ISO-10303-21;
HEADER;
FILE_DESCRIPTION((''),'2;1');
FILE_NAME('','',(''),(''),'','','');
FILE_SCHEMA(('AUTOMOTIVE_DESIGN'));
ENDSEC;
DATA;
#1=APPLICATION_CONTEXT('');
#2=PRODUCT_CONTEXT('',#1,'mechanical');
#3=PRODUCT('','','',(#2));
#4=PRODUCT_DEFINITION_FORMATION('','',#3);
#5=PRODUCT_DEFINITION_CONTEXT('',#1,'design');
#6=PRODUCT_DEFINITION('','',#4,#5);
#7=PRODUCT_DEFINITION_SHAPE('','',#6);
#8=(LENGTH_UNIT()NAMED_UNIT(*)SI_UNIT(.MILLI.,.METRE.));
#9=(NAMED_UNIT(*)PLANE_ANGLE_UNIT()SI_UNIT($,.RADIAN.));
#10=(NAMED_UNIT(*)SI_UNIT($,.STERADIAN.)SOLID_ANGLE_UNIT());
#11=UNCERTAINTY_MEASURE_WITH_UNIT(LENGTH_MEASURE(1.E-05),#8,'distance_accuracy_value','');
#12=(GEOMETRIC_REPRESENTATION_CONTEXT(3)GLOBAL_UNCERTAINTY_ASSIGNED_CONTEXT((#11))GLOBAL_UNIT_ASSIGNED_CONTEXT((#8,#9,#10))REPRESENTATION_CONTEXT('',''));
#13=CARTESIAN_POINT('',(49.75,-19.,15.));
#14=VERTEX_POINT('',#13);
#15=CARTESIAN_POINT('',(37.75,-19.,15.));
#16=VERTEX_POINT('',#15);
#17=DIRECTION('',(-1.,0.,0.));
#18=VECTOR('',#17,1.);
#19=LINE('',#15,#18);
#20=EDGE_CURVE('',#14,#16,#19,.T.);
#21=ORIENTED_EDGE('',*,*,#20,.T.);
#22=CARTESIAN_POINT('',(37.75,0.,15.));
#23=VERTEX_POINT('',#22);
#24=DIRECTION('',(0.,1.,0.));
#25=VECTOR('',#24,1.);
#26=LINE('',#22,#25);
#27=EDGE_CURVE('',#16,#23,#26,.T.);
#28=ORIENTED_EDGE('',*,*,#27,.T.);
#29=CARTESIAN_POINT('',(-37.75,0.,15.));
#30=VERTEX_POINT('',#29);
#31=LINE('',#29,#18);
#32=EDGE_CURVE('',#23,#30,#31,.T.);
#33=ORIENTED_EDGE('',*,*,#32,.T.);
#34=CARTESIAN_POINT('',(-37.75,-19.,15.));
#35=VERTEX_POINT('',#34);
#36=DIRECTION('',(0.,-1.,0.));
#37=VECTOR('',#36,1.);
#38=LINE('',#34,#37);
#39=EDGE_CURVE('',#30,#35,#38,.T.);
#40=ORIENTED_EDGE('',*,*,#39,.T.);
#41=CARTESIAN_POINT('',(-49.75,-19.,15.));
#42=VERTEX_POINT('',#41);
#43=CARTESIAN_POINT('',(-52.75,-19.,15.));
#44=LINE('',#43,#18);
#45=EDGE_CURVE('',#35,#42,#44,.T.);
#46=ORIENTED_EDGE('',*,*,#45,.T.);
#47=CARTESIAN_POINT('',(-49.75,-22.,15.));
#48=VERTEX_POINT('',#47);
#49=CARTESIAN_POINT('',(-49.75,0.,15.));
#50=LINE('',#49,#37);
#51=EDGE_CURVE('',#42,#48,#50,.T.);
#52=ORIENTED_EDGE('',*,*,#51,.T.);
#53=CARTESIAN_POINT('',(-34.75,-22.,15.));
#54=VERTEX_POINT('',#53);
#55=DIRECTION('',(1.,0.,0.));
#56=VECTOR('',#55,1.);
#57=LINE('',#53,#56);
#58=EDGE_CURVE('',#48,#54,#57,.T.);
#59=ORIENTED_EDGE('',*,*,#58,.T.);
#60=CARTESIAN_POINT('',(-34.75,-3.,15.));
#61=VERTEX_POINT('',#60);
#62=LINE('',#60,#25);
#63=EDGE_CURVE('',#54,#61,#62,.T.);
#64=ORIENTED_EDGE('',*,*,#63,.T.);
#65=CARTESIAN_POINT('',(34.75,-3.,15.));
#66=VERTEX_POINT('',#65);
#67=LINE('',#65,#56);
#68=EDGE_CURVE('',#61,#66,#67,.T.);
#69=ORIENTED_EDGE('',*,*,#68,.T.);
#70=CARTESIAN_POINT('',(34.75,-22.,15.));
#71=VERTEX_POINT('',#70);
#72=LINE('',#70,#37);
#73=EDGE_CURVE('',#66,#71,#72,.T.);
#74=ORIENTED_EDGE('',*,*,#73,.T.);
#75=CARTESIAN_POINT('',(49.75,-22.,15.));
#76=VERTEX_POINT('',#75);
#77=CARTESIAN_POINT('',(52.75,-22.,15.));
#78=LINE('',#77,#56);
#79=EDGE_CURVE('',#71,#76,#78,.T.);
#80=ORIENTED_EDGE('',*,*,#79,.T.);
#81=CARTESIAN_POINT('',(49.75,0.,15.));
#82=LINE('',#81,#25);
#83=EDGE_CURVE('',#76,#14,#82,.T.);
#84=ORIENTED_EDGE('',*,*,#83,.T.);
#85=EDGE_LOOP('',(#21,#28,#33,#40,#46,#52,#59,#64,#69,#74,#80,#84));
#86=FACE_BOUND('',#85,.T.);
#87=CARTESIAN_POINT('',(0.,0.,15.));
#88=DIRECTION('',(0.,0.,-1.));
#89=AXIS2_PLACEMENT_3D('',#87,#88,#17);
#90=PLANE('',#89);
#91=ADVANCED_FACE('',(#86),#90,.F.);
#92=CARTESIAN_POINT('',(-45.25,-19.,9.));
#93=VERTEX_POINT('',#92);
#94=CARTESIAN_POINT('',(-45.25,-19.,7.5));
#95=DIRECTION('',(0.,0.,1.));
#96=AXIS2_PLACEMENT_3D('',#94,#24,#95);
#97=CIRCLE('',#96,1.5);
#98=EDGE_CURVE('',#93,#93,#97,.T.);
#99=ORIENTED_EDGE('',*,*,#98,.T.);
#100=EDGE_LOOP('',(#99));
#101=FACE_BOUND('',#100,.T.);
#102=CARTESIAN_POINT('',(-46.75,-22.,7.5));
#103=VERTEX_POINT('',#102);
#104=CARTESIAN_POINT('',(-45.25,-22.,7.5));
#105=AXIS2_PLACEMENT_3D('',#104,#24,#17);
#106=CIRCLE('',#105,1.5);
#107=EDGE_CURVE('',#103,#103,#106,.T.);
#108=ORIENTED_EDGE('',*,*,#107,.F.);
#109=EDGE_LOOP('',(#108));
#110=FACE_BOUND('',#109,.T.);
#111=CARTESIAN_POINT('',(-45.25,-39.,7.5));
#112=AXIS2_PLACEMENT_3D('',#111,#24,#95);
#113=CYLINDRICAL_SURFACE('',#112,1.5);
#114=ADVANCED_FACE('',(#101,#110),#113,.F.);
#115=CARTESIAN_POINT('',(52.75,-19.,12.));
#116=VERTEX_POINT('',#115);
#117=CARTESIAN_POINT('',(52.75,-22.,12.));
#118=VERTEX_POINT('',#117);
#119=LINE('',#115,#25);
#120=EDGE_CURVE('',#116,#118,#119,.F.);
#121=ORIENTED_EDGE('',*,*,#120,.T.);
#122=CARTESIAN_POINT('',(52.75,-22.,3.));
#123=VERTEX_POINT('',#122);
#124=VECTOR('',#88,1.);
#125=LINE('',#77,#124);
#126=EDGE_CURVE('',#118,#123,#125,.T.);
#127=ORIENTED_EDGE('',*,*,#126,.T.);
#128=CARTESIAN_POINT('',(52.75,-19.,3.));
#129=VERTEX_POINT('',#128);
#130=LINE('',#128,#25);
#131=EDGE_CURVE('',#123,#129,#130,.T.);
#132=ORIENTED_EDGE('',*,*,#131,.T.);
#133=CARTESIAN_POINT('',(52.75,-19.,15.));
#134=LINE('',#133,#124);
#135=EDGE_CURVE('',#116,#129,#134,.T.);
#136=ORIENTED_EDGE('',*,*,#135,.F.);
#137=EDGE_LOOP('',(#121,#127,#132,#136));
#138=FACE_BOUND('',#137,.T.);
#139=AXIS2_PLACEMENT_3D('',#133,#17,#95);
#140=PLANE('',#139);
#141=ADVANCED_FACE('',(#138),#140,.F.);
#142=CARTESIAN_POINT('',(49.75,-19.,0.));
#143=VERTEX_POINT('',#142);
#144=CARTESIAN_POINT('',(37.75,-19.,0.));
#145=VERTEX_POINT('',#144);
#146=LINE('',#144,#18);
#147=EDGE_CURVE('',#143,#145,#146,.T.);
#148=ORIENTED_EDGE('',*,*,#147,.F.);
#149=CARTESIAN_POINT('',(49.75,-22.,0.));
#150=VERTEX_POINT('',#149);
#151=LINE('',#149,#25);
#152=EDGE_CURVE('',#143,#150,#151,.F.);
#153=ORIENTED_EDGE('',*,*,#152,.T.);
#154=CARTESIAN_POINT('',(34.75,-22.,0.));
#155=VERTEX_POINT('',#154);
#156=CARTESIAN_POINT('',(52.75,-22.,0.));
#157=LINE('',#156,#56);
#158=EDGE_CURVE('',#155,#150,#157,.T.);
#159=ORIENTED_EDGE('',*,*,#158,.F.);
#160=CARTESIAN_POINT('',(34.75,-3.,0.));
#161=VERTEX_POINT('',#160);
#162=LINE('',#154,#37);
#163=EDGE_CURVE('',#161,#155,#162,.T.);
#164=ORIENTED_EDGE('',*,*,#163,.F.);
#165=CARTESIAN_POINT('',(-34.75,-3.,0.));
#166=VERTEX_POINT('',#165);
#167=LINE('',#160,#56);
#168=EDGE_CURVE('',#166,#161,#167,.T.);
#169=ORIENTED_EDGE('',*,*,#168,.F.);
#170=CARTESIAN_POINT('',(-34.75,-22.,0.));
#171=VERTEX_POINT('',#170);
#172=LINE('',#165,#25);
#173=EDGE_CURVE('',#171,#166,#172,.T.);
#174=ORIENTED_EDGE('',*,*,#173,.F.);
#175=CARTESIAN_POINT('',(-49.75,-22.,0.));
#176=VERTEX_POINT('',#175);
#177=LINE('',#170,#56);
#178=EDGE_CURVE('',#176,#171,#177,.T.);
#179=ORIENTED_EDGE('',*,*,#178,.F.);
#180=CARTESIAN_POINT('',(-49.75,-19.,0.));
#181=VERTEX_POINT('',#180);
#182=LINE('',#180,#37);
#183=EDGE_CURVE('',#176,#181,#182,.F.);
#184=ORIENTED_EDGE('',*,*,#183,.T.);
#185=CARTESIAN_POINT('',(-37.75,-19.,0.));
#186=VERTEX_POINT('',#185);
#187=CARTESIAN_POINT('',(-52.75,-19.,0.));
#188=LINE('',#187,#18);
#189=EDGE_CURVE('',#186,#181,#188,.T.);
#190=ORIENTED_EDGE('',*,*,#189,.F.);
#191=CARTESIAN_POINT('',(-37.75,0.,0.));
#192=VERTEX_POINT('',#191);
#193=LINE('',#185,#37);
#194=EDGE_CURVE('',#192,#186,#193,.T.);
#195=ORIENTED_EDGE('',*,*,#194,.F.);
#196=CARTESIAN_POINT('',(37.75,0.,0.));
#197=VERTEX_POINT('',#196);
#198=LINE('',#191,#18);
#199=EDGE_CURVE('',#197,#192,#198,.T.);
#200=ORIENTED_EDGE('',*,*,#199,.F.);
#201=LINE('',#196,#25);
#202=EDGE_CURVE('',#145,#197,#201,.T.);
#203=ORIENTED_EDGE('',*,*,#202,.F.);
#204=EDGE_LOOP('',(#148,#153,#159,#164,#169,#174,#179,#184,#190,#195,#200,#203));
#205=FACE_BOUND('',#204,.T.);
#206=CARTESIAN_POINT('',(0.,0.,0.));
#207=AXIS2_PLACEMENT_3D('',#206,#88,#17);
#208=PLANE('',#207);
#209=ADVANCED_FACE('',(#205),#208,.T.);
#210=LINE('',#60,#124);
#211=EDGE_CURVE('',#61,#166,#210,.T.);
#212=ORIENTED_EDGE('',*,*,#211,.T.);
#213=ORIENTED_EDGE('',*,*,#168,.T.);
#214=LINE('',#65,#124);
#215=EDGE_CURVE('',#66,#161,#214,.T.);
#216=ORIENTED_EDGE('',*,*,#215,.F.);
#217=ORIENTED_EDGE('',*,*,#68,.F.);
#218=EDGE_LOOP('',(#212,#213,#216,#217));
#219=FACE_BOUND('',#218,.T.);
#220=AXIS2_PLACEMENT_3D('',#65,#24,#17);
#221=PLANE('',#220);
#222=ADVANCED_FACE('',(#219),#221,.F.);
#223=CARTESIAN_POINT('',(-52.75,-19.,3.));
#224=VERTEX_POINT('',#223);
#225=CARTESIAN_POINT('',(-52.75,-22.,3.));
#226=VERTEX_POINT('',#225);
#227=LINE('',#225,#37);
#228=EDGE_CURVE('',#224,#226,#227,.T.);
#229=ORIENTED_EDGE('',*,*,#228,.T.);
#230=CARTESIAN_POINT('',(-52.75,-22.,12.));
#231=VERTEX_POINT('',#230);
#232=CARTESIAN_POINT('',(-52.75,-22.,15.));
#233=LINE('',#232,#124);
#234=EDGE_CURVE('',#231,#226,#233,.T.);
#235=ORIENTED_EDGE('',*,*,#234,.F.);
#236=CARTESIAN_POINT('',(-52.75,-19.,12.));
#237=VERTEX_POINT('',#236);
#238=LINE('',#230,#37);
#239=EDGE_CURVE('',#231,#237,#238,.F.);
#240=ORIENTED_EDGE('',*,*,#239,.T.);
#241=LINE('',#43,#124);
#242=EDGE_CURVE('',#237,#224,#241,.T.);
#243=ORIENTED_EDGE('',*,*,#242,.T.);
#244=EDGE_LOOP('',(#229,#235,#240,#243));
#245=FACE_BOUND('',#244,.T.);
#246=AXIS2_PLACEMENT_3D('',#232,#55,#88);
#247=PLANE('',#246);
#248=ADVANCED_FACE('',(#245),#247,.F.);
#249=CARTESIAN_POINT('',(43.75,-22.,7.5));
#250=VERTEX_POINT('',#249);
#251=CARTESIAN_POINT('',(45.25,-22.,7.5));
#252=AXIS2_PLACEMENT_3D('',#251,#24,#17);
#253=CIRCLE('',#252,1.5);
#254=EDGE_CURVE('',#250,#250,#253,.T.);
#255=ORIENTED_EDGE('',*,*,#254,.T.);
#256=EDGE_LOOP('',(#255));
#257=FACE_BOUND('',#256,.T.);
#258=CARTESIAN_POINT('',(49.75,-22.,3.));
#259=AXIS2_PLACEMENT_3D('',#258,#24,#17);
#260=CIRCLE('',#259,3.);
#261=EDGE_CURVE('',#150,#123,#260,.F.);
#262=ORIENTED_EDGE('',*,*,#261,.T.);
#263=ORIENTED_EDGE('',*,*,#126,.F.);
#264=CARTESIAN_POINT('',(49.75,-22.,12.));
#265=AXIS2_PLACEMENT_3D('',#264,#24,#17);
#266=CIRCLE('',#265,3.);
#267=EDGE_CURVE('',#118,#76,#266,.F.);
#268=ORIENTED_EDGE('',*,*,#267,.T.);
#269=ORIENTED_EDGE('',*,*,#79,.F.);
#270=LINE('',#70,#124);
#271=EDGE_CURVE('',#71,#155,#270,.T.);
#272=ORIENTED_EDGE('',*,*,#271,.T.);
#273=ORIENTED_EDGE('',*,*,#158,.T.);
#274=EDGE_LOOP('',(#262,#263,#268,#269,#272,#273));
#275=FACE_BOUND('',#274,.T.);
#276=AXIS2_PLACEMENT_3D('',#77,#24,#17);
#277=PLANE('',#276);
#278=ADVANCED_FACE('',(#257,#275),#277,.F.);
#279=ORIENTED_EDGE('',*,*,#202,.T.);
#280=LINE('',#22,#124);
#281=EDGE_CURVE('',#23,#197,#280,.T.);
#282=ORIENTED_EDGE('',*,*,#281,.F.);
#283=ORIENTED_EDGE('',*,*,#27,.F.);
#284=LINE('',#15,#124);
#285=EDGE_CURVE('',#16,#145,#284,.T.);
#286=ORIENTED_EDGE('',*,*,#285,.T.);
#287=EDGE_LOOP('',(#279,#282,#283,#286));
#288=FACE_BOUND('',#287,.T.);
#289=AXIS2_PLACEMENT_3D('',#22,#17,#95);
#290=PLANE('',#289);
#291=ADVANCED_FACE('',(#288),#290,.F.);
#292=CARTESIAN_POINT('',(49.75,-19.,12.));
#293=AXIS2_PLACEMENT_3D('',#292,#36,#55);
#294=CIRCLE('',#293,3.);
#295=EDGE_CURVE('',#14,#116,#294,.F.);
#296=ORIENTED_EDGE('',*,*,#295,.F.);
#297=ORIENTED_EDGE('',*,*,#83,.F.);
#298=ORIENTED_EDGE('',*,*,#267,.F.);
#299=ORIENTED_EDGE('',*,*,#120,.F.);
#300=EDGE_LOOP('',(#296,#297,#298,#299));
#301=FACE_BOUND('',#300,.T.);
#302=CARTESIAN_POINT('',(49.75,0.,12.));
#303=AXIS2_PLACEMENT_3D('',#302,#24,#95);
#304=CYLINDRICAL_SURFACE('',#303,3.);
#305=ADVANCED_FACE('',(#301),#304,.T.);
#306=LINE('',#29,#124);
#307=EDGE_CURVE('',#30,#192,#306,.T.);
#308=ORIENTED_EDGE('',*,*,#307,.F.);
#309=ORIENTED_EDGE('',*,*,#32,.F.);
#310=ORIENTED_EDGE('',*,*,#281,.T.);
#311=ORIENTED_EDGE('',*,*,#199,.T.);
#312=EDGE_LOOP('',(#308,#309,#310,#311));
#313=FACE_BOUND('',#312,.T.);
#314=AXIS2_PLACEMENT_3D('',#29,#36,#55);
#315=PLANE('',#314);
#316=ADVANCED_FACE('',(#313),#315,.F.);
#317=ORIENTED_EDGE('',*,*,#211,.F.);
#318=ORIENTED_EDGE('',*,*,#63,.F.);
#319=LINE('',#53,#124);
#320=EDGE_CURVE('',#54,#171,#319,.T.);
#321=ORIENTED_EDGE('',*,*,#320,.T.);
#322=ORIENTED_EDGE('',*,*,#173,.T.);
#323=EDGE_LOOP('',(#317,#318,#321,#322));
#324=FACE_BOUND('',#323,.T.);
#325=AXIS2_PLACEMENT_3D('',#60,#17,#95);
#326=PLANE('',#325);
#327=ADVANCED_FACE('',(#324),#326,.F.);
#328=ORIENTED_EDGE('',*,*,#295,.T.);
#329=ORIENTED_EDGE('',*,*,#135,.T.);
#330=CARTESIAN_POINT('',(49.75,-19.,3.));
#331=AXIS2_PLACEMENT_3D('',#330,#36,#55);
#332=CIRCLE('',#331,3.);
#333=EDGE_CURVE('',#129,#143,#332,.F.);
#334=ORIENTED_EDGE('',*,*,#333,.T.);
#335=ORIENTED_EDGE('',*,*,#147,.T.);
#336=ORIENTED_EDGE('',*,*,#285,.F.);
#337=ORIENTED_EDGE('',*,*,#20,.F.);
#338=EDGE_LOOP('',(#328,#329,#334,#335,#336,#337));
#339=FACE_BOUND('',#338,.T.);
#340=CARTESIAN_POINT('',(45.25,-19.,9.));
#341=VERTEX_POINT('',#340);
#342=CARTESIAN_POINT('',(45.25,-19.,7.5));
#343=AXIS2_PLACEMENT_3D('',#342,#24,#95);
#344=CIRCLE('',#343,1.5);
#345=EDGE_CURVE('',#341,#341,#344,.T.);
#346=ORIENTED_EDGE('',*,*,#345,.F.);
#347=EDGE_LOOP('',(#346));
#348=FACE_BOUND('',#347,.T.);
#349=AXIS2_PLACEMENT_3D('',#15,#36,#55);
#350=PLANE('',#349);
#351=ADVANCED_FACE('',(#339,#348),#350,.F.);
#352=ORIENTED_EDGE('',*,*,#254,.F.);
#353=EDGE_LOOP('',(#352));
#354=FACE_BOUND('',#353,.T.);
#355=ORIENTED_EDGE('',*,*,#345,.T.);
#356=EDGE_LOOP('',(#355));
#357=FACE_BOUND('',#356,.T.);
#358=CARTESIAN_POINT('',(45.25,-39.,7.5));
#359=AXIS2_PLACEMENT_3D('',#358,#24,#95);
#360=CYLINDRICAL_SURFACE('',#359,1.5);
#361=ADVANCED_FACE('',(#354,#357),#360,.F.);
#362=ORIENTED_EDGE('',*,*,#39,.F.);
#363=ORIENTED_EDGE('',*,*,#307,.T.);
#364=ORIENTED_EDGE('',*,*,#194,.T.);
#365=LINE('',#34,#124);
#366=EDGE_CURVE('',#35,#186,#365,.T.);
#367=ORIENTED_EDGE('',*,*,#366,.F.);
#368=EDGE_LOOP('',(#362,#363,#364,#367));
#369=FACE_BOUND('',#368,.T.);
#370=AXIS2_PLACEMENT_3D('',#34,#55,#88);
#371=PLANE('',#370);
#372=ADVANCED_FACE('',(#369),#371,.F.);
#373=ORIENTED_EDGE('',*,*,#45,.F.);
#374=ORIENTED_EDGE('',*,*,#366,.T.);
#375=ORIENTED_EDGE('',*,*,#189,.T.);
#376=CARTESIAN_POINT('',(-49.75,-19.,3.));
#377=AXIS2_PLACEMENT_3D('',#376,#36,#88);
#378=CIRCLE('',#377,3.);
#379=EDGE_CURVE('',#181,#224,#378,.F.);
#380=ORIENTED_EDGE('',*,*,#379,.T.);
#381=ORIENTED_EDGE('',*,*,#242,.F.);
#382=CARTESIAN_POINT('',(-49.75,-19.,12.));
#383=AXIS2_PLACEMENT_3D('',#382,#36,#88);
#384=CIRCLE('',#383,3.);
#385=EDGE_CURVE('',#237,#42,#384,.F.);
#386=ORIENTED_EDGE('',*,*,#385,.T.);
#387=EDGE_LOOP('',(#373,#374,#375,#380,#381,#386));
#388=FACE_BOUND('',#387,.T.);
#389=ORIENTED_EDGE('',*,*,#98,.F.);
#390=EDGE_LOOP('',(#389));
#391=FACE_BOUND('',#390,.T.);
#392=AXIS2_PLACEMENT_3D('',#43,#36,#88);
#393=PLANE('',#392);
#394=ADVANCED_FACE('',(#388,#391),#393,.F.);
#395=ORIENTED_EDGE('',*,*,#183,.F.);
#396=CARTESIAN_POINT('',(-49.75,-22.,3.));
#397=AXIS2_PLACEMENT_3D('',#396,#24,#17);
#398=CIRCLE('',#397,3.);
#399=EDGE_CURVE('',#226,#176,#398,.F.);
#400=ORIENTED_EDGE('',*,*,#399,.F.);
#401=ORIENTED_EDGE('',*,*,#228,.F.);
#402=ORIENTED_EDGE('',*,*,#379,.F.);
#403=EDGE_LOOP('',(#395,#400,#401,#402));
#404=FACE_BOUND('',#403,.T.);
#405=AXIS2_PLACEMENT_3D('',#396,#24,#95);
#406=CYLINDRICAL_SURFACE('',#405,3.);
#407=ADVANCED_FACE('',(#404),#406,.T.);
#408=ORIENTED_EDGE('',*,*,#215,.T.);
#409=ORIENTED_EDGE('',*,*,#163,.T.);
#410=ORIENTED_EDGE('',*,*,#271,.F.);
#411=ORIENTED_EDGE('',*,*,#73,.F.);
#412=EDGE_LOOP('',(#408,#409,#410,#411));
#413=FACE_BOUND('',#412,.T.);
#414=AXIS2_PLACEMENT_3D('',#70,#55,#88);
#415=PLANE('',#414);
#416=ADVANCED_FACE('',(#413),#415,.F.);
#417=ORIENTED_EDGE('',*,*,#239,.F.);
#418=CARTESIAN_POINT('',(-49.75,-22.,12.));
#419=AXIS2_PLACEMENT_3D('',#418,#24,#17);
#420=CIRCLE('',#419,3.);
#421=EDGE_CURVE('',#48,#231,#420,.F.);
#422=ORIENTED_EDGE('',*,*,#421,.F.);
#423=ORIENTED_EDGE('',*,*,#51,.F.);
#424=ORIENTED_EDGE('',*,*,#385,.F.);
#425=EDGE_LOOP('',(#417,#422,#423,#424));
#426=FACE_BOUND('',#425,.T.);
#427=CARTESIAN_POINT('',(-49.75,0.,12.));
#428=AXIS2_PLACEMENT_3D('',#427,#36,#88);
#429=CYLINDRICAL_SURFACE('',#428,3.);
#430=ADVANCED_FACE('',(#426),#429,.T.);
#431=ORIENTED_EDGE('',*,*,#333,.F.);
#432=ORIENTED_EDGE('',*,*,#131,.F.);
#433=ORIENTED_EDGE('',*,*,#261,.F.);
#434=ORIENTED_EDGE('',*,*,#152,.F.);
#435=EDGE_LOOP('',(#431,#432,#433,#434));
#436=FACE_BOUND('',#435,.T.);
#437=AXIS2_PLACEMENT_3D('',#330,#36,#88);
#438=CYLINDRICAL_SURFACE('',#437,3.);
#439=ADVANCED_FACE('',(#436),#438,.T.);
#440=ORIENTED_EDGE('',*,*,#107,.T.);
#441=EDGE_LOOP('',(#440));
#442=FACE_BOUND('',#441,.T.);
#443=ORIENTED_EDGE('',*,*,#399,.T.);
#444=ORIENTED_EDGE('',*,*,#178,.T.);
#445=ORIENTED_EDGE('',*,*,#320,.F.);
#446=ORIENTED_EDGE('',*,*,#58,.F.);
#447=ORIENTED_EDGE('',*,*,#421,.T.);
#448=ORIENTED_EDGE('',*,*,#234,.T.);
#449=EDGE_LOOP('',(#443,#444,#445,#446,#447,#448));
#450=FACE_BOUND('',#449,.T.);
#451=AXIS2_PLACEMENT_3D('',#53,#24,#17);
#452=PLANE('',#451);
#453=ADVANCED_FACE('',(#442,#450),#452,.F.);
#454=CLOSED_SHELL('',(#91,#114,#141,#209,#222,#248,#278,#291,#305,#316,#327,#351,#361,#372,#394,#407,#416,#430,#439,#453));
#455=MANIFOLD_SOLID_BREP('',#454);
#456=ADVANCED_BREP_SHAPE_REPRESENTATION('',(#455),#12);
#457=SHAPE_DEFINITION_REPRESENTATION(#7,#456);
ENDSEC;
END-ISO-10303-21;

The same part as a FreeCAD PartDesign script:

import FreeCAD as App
import Part
import Sketcher
Q = App.Units.Quantity


def edges_at(feature, points):
    """Names of the edges that pass closest to the given points."""
    edges = feature.Shape.Edges
    near = lambda p: min(range(len(edges)), key=lambda i: edges[i].distToShape(Part.Vertex(*p))[0])
    return sorted({f"Edge{near(p) + 1}" for p in points})


def add_polygon(sketch, points):
    """Adds a closed chain of lines whose ends are joined by coincident constraints."""
    first, n = sketch.GeometryCount, len(points)
    for a, b in zip(points, points[1:] + points[:1]):
        sketch.addGeometry(Part.LineSegment(App.Vector(*a, 0), App.Vector(*b, 0)), False)
    for i in range(n):
        sketch.addConstraint(Sketcher.Constraint("Coincident", first + i, 2, first + (i + 1) % n, 1))

doc = App.newDocument("Part")
body = doc.addObject("PartDesign::Body", "Body")

# Sketch on XY plane
sketch1 = body.newObject("Sketcher::SketchObject", "Sketch")
sketch1.AttachmentSupport = (doc.getObject("XY_Plane"), [""])
sketch1.MapMode = "FlatFace"
add_polygon(sketch1, [(37.8, 0), (-37.8, 0), (-37.8, -19), (-52.8, -19), (-52.8, -22), (-34.8, -22), (-34.8, -3), (34.8, -3), (34.8, -22), (52.8, -22), (52.8, -19), (37.8, -19)])  # lines 0-11
sketch1.addConstraint([
    Sketcher.Constraint("Horizontal", 0),
    Sketcher.Constraint("Vertical", 1),
    Sketcher.Constraint("Horizontal", 2),
    Sketcher.Constraint("Vertical", 3),
    Sketcher.Constraint("Horizontal", 4),
    Sketcher.Constraint("Vertical", 5),
    Sketcher.Constraint("Horizontal", 6),
    Sketcher.Constraint("Vertical", 7),
    Sketcher.Constraint("Horizontal", 8),
    Sketcher.Constraint("Vertical", 9),
    Sketcher.Constraint("Horizontal", 10),
    Sketcher.Constraint("Vertical", 11),
    Sketcher.Constraint("Symmetric", 0, 2, 11, 2, -1, 1),
    Sketcher.Constraint("Symmetric", 4, 2, 7, 2, -2),
    Sketcher.Constraint("Symmetric", 2, 2, 9, 2, -2),
    Sketcher.Constraint("Equal", 1, 5),
    Sketcher.Constraint("DistanceX", 2, 2, 2, 1, Q("15 mm")),
    Sketcher.Constraint("DistanceX", 4, 1, 4, 2, Q("18 mm")),
    Sketcher.Constraint("DistanceY", 1, 2, 1, 1, Q("19 mm")),
    Sketcher.Constraint("DistanceY", 3, 2, 3, 1, Q("3 mm")),
    Sketcher.Constraint("DistanceX", 0, 2, 0, 1, Q("75.5 mm")),
])
pad1 = body.newObject("PartDesign::Pad", "Pad")
pad1.Profile = sketch1
pad1.Length = 15

# Sketch on XZ plane
sketch2 = body.newObject("Sketcher::SketchObject", "Sketch001")
sketch2.AttachmentSupport = (doc.getObject("XZ_Plane"), [""])
sketch2.MapMode = "FlatFace"
sketch2.AttachmentOffset = App.Placement(App.Vector(0, 0, 19), App.Rotation())
sketch2.addGeometry([
    Part.Circle(App.Vector(-45.2, 7.5, 0), App.Vector(0, 0, 1), 1.5),
    Part.Circle(App.Vector(45.2, 7.5, 0), App.Vector(0, 0, 1), 1.5),
], False)
sketch2.addConstraint([
    Sketcher.Constraint("Equal", 0, 1),
    Sketcher.Constraint("Symmetric", 0, 3, 1, 3, -2),
    Sketcher.Constraint("Diameter", 0, Q("3 mm")),
    Sketcher.Constraint("DistanceY", -1, 1, 0, 3, Q("7.5 mm")),
    Sketcher.Constraint("DistanceX", 0, 3, 1, 3, Q("90.5 mm")),
])
pocket1 = body.newObject("PartDesign::Pocket", "Pocket")
pocket1.Profile = sketch2
pocket1.Length = 20
pocket1.Reversed = True
doc.recompute()

fillet = body.newObject("PartDesign::Fillet", "Fillet")
fillet.Base = (pocket1, edges_at(pocket1, [
    (-52.75, -20.5, 15),
    (52.75, -20.5, 0),
    (-52.75, -20.5, 0),
    (52.75, -20.5, 15),
]))
fillet.Radius = 3

doc.recompute()
